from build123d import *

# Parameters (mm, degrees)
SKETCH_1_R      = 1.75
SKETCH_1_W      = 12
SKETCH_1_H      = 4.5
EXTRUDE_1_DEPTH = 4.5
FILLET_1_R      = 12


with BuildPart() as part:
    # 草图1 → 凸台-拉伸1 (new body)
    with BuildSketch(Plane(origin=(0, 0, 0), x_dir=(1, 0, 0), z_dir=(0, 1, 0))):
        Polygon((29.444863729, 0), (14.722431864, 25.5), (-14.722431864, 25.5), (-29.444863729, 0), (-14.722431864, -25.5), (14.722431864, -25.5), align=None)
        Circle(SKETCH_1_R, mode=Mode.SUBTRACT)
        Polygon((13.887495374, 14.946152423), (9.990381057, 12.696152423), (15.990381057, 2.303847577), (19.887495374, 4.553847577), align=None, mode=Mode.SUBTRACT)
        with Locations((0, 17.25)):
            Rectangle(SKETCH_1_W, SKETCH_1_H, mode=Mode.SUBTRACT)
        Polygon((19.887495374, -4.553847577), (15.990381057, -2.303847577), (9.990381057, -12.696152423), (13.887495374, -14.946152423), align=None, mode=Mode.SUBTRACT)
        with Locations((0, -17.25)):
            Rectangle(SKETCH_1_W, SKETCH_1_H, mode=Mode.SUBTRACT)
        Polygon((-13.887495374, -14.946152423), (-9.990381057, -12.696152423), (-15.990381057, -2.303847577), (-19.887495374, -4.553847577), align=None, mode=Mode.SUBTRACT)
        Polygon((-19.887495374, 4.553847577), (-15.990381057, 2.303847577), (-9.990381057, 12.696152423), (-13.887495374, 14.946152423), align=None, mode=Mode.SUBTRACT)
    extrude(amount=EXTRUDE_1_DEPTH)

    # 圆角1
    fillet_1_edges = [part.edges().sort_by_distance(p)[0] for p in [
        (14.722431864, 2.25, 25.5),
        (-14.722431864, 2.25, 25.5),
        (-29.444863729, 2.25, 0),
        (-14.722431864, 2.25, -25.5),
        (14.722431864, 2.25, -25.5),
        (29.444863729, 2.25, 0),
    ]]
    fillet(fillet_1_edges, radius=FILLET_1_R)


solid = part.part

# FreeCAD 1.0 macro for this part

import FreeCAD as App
import Part
import Sketcher
from FreeCAD import Vector
Q = App.Units.Quantity


def edges_at(feature, points):
    """Names of the edges that pass closest to the given points."""
    edges = feature.Shape.Edges
    near = lambda p: min(range(len(edges)), key=lambda i: edges[i].distToShape(Part.Vertex(*p))[0])
    return sorted({f"Edge{near(p) + 1}" for p in points})

doc = App.newDocument("Part")
body = doc.addObject("PartDesign::Body", "Body")

# Sketch on XZ plane
sketch1 = doc.addObject("Sketcher::SketchObject", "Sketch")
body.addObject(sketch1)
sketch1.AttachmentSupport = (doc.XZ_Plane, [""])
sketch1.MapMode = "FlatFace"
sketch1.addGeometry([
    Part.LineSegment(Vector(29.444864, 0, 0), Vector(14.722432, -25.5, 0)),  # 0
    Part.LineSegment(Vector(14.722432, -25.5, 0), Vector(-14.722432, -25.5, 0)),  # 1
    Part.LineSegment(Vector(-14.722432, -25.5, 0), Vector(-29.444864, 0, 0)),  # 2
    Part.LineSegment(Vector(-29.444864, 0, 0), Vector(-14.722432, 25.5, 0)),  # 3
    Part.LineSegment(Vector(-14.722432, 25.5, 0), Vector(14.722432, 25.5, 0)),  # 4
    Part.LineSegment(Vector(14.722432, 25.5, 0), Vector(29.444864, 0, 0)),  # 5
    Part.LineSegment(Vector(-9.990381, 12.696152, 0), Vector(-13.887495, 14.946152, 0)),  # 6
    Part.LineSegment(Vector(-13.887495, 14.946152, 0), Vector(-19.887495, 4.553848, 0)),  # 7
    Part.LineSegment(Vector(-19.887495, 4.553848, 0), Vector(-15.990381, 2.303848, 0)),  # 8
    Part.LineSegment(Vector(-15.990381, 2.303848, 0), Vector(-9.990381, 12.696152, 0)),  # 9
    Part.LineSegment(Vector(6, 19.5, 0), Vector(-6, 19.5, 0)),  # 10
    Part.LineSegment(Vector(-6, 19.5, 0), Vector(-6, 15, 0)),  # 11
    Part.LineSegment(Vector(-6, 15, 0), Vector(6, 15, 0)),  # 12
    Part.LineSegment(Vector(6, 15, 0), Vector(6, 19.5, 0)),  # 13
    Part.LineSegment(Vector(15.990381, 2.303848, 0), Vector(19.887495, 4.553848, 0)),  # 14
    Part.LineSegment(Vector(19.887495, 4.553848, 0), Vector(13.887495, 14.946152, 0)),  # 15
    Part.LineSegment(Vector(13.887495, 14.946152, 0), Vector(9.990381, 12.696152, 0)),  # 16
    Part.LineSegment(Vector(9.990381, 12.696152, 0), Vector(15.990381, 2.303848, 0)),  # 17
    Part.LineSegment(Vector(-15.990381, -2.303848, 0), Vector(-19.887495, -4.553848, 0)),  # 18
    Part.LineSegment(Vector(-19.887495, -4.553848, 0), Vector(-13.887495, -14.946152, 0)),  # 19
    Part.LineSegment(Vector(-13.887495, -14.946152, 0), Vector(-9.990381, -12.696152, 0)),  # 20
    Part.LineSegment(Vector(-9.990381, -12.696152, 0), Vector(-15.990381, -2.303848, 0)),  # 21
    Part.Circle(Vector(0, 0, 0), Vector(0, 0, 1), 1.75),  # 22
    Part.LineSegment(Vector(9.990381, -12.696152, 0), Vector(13.887495, -14.946152, 0)),  # 23
    Part.LineSegment(Vector(13.887495, -14.946152, 0), Vector(19.887495, -4.553848, 0)),  # 24
    Part.LineSegment(Vector(19.887495, -4.553848, 0), Vector(15.990381, -2.303848, 0)),  # 25
    Part.LineSegment(Vector(15.990381, -2.303848, 0), Vector(9.990381, -12.696152, 0)),  # 26
    Part.LineSegment(Vector(6, -15, 0), Vector(-6, -15, 0)),  # 27
    Part.LineSegment(Vector(-6, -15, 0), Vector(-6, -19.5, 0)),  # 28
    Part.LineSegment(Vector(-6, -19.5, 0), Vector(6, -19.5, 0)),  # 29
    Part.LineSegment(Vector(6, -19.5, 0), Vector(6, -15, 0)),  # 30
], False)
sketch1.addConstraint([
    Sketcher.Constraint("Coincident", 0, 2, 1, 1),
    Sketcher.Constraint("Coincident", 1, 2, 2, 1),
    Sketcher.Constraint("Coincident", 2, 2, 3, 1),
    Sketcher.Constraint("Coincident", 3, 2, 4, 1),
    Sketcher.Constraint("Coincident", 4, 2, 5, 1),
    Sketcher.Constraint("Coincident", 5, 2, 0, 1),
    Sketcher.Constraint("Coincident", 6, 2, 7, 1),
    Sketcher.Constraint("Coincident", 7, 2, 8, 1),
    Sketcher.Constraint("Coincident", 8, 2, 9, 1),
    Sketcher.Constraint("Coincident", 9, 2, 6, 1),
    Sketcher.Constraint("Coincident", 10, 2, 11, 1),
    Sketcher.Constraint("Coincident", 11, 2, 12, 1),
    Sketcher.Constraint("Coincident", 12, 2, 13, 1),
    Sketcher.Constraint("Coincident", 13, 2, 10, 1),
    Sketcher.Constraint("Coincident", 14, 2, 15, 1),
    Sketcher.Constraint("Coincident", 15, 2, 16, 1),
    Sketcher.Constraint("Coincident", 16, 2, 17, 1),
    Sketcher.Constraint("Coincident", 17, 2, 14, 1),
    Sketcher.Constraint("Coincident", 18, 2, 19, 1),
    Sketcher.Constraint("Coincident", 19, 2, 20, 1),
    Sketcher.Constraint("Coincident", 20, 2, 21, 1),
    Sketcher.Constraint("Coincident", 21, 2, 18, 1),
    Sketcher.Constraint("Coincident", 23, 2, 24, 1),
    Sketcher.Constraint("Coincident", 24, 2, 25, 1),
    Sketcher.Constraint("Coincident", 25, 2, 26, 1),
    Sketcher.Constraint("Coincident", 26, 2, 23, 1),
    Sketcher.Constraint("Coincident", 27, 2, 28, 1),
    Sketcher.Constraint("Coincident", 28, 2, 29, 1),
    Sketcher.Constraint("Coincident", 29, 2, 30, 1),
    Sketcher.Constraint("Coincident", 30, 2, 27, 1),
    Sketcher.Constraint("Horizontal", 1),
    Sketcher.Constraint("Horizontal", 4),
    Sketcher.Constraint("Horizontal", 10),
    Sketcher.Constraint("Vertical", 11),
    Sketcher.Constraint("Horizontal", 12),
    Sketcher.Constraint("Vertical", 13),
    Sketcher.Constraint("Horizontal", 27),
    Sketcher.Constraint("Vertical", 28),
    Sketcher.Constraint("Horizontal", 29),
    Sketcher.Constraint("Vertical", 30),
    Sketcher.Constraint("Coincident", 22, 3, -1, 1),
    Sketcher.Constraint("Symmetric", 0, 2, 3, 2, -1, 1),
    Sketcher.Constraint("Symmetric", 2, 2, 5, 2, -1, 1),
    Sketcher.Constraint("Symmetric", 14, 2, 18, 2, -1, 1),
    Sketcher.Constraint("Symmetric", 15, 2, 19, 2, -1, 1),
    Sketcher.Constraint("Symmetric", 16, 2, 20, 2, -1, 1),
    Sketcher.Constraint("Symmetric", 17, 2, 21, 2, -1, 1),
    Sketcher.Constraint("Symmetric", 6, 2, 23, 2, -1, 1),
    Sketcher.Constraint("Symmetric", 7, 2, 24, 2, -1, 1),
    Sketcher.Constraint("Symmetric", 8, 2, 25, 2, -1, 1),
    Sketcher.Constraint("Symmetric", 9, 2, 26, 2, -1, 1),
    Sketcher.Constraint("Symmetric", 12, 2, 27, 2, -1, 1),
    Sketcher.Constraint("Symmetric", 10, 2, 29, 2, -1, 1),
    Sketcher.Constraint("Symmetric", 7, 2, 14, 2, -2),
    Sketcher.Constraint("Symmetric", 6, 2, 15, 2, -2),
    Sketcher.Constraint("Symmetric", 9, 2, 16, 2, -2),
    Sketcher.Constraint("Symmetric", 8, 2, 17, 2, -2),
    Sketcher.Constraint("PointOnObject", 2, 2, -1),
    Sketcher.Constraint("Parallel", 2, 5),
    Sketcher.Constraint("Perpendicular", 3, 6),
    Sketcher.Constraint("Perpendicular", 6, 7),
    Sketcher.Constraint("Perpendicular", 7, 8),
    Sketcher.Constraint("Perpendicular", 8, 9),
    Sketcher.Constraint("Perpendicular", 5, 14),
    Sketcher.Constraint("Vertical", 11, 2, 27, 2),
    Sketcher.Constraint("Diameter", 22, Q("3.5 mm")),
    Sketcher.Constraint("DistanceX", 10, 2, 10, 1, Q("12 mm")),
    Sketcher.Constraint("Angle", 0, Q("-120 deg")),
    Sketcher.Constraint("Distance", 7, Q("12 mm")),
    Sketcher.Constraint("DistanceY", 11, 2, 11, 1, Q("4.5 mm")),
    Sketcher.Constraint("DistanceY", -1, 1, 11, 2, Q("15 mm")),
    Sketcher.Constraint("DistanceY", 1, 2, 3, 2, Q("51 mm")),
    Sketcher.Constraint("DistanceY", 20, 2, 8, 2, Q("15 mm")),
    Sketcher.Constraint("Distance", 6, Q("4.5 mm")),
    Sketcher.Constraint("DistanceX", 1, 2, 1, 1, Q("29.444864 mm")),
    Sketcher.Constraint("DistanceX", 8, 2, -1, 1, Q("15.990381 mm")),
])
pad1 = doc.addObject("PartDesign::Pad", "Pad")
body.addObject(pad1)
pad1.Profile = sketch1
pad1.Length = 4.5
pad1.Reversed = True
doc.recompute()

fillet = doc.addObject("PartDesign::Fillet", "Fillet")
body.addObject(fillet)
fillet.Base = (pad1, edges_at(pad1, [
    (14.722, 2.25, 25.5),
    (-14.722, 2.25, 25.5),
    (-29.445, 2.25, 0),
    (-14.722, 2.25, -25.5),
    (14.722, 2.25, -25.5),
    (29.445, 2.25, 0),
]))
fillet.Radius = 12

doc.recompute()
